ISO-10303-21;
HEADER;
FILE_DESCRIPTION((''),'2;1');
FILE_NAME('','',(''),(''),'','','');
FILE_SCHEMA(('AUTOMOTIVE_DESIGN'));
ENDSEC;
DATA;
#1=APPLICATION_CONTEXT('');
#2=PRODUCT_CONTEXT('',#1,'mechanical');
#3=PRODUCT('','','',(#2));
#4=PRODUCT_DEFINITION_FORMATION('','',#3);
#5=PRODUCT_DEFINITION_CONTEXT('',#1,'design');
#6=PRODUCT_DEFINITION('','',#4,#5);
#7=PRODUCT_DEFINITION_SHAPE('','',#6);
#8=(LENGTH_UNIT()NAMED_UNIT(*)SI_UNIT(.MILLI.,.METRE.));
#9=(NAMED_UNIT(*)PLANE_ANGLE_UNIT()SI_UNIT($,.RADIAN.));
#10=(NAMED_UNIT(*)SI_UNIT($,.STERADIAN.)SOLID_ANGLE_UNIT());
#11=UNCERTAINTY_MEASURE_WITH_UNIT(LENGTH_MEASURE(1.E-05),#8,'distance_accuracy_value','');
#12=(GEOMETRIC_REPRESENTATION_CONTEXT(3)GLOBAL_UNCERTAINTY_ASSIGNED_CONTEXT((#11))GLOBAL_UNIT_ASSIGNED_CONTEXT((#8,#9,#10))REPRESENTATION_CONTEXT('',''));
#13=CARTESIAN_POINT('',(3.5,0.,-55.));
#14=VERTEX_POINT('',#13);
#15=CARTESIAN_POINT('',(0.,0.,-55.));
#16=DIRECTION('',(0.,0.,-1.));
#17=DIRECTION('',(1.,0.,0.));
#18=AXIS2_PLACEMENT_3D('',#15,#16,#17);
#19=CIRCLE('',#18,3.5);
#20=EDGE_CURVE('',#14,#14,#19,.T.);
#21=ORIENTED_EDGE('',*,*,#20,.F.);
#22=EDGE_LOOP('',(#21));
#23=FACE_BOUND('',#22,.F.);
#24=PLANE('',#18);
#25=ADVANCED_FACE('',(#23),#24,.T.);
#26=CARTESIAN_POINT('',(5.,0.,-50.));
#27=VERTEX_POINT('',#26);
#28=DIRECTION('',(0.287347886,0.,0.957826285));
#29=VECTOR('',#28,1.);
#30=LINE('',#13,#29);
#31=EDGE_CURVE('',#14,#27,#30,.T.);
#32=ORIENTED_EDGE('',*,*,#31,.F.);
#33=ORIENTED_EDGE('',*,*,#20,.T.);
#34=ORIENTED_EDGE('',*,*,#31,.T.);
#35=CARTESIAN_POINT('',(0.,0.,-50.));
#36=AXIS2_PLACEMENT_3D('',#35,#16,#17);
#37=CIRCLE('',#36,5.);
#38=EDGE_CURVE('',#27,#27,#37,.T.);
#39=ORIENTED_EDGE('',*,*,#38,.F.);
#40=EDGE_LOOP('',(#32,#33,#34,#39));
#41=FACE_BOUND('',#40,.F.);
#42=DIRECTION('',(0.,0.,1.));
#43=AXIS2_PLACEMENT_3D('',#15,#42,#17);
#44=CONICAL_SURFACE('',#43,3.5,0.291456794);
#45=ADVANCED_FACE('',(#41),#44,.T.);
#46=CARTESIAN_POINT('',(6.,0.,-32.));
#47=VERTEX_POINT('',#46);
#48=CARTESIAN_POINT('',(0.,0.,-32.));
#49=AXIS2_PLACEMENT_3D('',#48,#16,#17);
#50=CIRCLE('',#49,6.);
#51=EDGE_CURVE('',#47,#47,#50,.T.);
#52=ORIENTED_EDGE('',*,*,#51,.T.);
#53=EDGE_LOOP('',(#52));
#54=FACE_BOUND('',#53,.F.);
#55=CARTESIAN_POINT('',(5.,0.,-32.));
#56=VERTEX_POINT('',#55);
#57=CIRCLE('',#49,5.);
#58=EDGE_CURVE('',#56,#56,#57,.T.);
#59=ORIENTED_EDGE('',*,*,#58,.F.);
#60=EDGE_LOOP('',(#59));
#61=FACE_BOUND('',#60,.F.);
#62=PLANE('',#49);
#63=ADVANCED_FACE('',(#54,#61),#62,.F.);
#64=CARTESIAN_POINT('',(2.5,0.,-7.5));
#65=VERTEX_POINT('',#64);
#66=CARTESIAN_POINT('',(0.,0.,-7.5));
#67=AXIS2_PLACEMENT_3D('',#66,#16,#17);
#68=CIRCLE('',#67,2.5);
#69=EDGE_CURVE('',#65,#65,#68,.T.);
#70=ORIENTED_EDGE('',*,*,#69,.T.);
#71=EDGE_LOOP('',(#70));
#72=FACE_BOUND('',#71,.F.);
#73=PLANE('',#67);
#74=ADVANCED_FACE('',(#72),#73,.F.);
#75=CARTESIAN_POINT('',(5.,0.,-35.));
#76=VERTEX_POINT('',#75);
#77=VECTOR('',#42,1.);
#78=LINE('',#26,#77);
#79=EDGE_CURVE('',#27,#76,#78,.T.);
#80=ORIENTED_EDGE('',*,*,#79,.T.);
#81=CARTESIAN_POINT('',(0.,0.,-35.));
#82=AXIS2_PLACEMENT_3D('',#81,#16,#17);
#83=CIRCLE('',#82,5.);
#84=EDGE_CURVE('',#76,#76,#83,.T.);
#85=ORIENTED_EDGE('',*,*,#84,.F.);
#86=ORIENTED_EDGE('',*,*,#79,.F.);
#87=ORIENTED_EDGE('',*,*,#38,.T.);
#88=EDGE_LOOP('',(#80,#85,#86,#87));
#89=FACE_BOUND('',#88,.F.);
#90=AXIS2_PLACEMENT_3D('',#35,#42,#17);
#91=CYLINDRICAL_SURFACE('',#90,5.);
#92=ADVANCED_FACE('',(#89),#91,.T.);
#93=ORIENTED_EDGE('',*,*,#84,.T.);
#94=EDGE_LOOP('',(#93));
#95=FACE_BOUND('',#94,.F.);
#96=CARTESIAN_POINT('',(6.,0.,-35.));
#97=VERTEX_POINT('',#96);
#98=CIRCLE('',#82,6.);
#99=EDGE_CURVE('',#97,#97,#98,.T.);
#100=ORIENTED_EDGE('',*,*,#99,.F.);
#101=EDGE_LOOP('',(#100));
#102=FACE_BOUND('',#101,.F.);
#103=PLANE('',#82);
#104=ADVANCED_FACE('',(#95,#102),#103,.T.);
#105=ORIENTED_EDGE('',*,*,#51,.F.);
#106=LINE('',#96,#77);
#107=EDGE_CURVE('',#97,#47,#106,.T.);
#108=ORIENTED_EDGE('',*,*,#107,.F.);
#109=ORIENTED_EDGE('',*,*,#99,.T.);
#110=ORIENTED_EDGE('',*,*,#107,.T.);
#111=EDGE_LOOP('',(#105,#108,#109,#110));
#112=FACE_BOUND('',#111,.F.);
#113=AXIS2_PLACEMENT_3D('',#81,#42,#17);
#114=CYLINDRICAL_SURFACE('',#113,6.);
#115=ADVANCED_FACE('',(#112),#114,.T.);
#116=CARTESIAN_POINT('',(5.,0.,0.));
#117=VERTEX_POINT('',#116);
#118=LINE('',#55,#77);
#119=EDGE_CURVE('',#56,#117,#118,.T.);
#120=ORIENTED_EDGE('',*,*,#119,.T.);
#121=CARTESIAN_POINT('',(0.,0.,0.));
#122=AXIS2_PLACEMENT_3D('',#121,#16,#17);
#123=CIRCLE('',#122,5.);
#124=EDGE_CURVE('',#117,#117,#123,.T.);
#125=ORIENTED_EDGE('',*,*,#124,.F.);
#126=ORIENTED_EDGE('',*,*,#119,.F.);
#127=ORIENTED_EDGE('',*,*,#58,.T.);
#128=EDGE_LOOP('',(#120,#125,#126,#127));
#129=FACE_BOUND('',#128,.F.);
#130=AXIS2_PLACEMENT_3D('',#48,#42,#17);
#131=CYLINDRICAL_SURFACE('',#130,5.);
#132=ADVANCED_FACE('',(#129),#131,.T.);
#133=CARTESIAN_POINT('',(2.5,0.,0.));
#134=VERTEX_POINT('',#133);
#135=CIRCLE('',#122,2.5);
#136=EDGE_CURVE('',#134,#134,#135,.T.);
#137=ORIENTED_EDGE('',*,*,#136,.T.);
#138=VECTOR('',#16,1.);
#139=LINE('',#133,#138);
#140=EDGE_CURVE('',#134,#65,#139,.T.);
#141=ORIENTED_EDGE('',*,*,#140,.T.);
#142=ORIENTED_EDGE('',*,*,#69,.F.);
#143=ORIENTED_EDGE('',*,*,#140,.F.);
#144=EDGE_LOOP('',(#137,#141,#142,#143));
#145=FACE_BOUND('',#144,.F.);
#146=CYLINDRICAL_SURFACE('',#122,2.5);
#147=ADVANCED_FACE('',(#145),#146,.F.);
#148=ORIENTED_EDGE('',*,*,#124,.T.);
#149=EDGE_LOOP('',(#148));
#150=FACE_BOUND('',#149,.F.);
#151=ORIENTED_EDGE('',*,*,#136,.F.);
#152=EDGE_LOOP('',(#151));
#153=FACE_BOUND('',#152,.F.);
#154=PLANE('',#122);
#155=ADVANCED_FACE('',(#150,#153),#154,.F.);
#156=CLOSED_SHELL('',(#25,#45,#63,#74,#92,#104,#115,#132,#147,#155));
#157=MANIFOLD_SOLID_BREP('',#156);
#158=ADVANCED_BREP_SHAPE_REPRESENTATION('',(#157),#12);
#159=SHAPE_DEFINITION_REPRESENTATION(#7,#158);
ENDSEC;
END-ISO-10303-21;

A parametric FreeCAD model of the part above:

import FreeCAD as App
import Part
import Sketcher
from FreeCAD import Vector
Q = App.Units.Quantity


def add_polygon(sketch, points):
    """Adds a closed chain of lines whose ends are joined by coincident constraints."""
    first, n = sketch.GeometryCount, len(points)
    for a, b in zip(points, points[1:] + points[:1]):
        sketch.addGeometry(Part.LineSegment(App.Vector(*a, 0), App.Vector(*b, 0)), False)
    for i in range(n):
        sketch.addConstraint(Sketcher.Constraint("Coincident", first + i, 2, first + (i + 1) % n, 1))

doc = App.newDocument("Part")
body = doc.addObject("PartDesign::Body", "Body")

# Sketch on XZ plane
sketch1 = body.newObject("Sketcher::SketchObject", "Sketch")
sketch1.AttachmentSupport = (doc.getObject("XZ_Plane"), [""])
sketch1.MapMode = "FlatFace"
add_polygon(sketch1, [(5, 0), (2.5, 0), (2.5, -7.5), (0, -7.5), (0, -55), (3.5, -55), (5, -50), (5, -35), (6, -35), (6, -32), (5, -32)])  # lines 0-10
sketch1.addConstraint([
    Sketcher.Constraint("Horizontal", 0),
    Sketcher.Constraint("Vertical", 1),
    Sketcher.Constraint("Horizontal", 2),
    Sketcher.Constraint("Vertical", 3),
    Sketcher.Constraint("Horizontal", 4),
    Sketcher.Constraint("Vertical", 6),
    Sketcher.Constraint("Horizontal", 7),
    Sketcher.Constraint("Vertical", 8),
    Sketcher.Constraint("Horizontal", 9),
    Sketcher.Constraint("Vertical", 10),
    Sketcher.Constraint("PointOnObject", 0, 2, -1),
    Sketcher.Constraint("PointOnObject", 2, 2, -2),
    Sketcher.Constraint("Vertical", 6, 2, 9, 2),
    Sketcher.Constraint("Equal", 0, 2),
    Sketcher.Constraint("DistanceX", 7, 1, 7, 2, Q("1 mm")),
    Sketcher.Constraint("DistanceY", 6, 1, 6, 2, Q("15 mm")),
    Sketcher.Constraint("DistanceY", 8, 1, 8, 2, Q("3 mm")),
    Sketcher.Constraint("DistanceY", 10, 1, 10, 2, Q("32 mm")),
    Sketcher.Constraint("DistanceX", 0, 2, 0, 1, Q("2.5 mm")),
    Sketcher.Constraint("DistanceX", 4, 1, 4, 2, Q("3.5 mm")),
    Sketcher.Constraint("DistanceY", 1, 2, 1, 1, Q("7.5 mm")),
    Sketcher.Constraint("DistanceY", 3, 2, 3, 1, Q("47.5 mm")),
])
revolution = body.newObject("PartDesign::Revolution", "Revolution")
revolution.Profile = sketch1
revolution.ReferenceAxis = (sketch1, ["V_Axis"])
revolution.Angle = 360

doc.recompute()
